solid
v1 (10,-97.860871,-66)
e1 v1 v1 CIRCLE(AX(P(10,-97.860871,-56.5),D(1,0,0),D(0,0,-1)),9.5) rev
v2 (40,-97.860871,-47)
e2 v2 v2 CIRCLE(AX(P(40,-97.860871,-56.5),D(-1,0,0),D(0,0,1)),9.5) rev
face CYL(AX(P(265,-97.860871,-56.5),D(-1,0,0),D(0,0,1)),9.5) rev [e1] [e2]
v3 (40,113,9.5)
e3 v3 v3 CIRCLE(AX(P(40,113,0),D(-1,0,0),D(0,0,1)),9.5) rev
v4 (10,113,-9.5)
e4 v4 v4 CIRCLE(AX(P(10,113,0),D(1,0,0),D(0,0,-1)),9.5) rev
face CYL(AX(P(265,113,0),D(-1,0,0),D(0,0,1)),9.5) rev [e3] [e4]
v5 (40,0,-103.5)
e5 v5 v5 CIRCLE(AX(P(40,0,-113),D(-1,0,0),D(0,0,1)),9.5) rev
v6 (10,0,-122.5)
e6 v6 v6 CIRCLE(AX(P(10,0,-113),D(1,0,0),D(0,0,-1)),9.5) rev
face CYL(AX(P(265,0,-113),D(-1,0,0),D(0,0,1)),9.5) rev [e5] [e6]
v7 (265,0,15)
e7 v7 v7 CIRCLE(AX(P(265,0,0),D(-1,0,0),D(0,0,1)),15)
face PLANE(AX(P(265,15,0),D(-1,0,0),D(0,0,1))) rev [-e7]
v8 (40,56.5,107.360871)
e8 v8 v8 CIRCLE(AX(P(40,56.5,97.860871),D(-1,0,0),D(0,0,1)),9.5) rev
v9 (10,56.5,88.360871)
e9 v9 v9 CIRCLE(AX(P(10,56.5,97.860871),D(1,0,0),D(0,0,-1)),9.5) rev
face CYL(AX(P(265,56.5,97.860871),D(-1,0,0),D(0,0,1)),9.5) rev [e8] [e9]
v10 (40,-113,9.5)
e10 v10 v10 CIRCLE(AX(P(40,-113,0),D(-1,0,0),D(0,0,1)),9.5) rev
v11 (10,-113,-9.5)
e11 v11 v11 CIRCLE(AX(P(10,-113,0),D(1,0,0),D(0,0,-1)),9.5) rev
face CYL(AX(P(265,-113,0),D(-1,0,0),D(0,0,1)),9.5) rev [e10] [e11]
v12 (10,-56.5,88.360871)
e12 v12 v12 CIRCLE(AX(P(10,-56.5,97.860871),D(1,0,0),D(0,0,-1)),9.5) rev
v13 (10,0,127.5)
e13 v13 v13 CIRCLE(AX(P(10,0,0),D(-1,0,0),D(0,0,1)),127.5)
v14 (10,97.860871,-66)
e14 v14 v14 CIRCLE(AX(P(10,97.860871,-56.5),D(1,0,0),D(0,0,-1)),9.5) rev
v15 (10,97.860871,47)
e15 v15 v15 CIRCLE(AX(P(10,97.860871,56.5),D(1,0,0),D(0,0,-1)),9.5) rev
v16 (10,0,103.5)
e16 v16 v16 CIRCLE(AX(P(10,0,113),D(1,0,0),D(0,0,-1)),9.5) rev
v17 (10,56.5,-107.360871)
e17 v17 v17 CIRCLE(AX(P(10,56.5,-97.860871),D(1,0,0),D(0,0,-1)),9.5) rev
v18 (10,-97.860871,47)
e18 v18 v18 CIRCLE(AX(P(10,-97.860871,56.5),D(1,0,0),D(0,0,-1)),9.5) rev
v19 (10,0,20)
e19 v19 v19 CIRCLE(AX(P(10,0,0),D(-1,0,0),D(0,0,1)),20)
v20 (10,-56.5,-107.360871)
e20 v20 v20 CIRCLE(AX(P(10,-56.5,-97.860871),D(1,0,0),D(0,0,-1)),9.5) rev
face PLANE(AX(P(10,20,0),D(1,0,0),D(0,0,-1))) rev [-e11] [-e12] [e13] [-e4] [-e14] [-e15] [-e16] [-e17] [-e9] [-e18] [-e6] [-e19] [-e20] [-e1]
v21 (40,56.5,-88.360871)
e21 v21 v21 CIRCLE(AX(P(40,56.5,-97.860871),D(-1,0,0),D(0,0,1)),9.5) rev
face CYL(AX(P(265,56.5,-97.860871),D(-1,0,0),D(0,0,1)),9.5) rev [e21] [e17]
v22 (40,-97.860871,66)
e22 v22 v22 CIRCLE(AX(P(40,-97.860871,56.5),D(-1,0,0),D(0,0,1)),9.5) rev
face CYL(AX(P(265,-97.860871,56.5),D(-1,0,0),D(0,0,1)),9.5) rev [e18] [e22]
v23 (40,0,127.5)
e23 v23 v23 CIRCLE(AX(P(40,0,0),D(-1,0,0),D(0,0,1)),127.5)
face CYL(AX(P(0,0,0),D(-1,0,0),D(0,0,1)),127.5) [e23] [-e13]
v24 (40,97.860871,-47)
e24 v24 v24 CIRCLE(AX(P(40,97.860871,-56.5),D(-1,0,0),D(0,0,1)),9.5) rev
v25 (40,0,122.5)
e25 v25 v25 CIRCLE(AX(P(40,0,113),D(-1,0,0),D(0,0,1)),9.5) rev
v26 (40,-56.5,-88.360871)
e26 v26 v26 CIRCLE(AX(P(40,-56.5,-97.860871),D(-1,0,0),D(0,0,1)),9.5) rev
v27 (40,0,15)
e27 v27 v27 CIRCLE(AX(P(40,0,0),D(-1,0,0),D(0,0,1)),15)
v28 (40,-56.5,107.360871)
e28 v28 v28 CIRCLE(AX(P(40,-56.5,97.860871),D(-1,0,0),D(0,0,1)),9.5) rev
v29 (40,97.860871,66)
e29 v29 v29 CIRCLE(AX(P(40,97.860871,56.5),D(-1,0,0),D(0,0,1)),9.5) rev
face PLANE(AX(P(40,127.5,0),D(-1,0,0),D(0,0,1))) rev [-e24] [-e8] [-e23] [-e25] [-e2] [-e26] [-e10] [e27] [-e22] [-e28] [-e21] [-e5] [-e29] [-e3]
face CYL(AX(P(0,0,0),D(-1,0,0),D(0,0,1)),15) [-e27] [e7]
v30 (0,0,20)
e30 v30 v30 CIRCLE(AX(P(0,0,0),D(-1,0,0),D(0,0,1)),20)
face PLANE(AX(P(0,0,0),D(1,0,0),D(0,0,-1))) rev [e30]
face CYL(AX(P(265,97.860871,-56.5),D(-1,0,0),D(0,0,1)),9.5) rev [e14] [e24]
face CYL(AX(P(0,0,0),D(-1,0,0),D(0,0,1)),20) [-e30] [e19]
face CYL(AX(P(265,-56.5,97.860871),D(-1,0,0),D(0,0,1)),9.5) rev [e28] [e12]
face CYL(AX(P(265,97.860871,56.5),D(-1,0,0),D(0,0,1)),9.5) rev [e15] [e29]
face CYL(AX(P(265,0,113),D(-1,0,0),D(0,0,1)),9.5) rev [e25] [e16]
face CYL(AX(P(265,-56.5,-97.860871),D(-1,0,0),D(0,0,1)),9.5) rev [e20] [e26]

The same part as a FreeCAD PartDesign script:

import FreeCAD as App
import Part
import Sketcher

doc = App.newDocument("Part")
body = doc.addObject("PartDesign::Body", "Body")

# Sketch on XY plane
sketch1 = doc.addObject("Sketcher::SketchObject", "Sketch")
body.addObject(sketch1)
sketch1.AttachmentSupport = (doc.XY_Plane, [""])
sketch1.MapMode = "FlatFace"
sketch1.addGeometry([
    Part.LineSegment(App.Vector(0, 0, 0), App.Vector(265, 0, 0)),  # 0
    Part.LineSegment(App.Vector(265, 0, 0), App.Vector(265, 15, 0)),  # 1
    Part.LineSegment(App.Vector(265, 15, 0), App.Vector(40, 15, 0)),  # 2
    Part.LineSegment(App.Vector(40, 15, 0), App.Vector(40, 128, 0)),  # 3
    Part.LineSegment(App.Vector(40, 128, 0), App.Vector(10, 128, 0)),  # 4
    Part.LineSegment(App.Vector(10, 128, 0), App.Vector(10, 20, 0)),  # 5
    Part.LineSegment(App.Vector(10, 20, 0), App.Vector(0, 20, 0)),  # 6
    Part.LineSegment(App.Vector(0, 20, 0), App.Vector(0, 0, 0)),  # 7
], False)
sketch1.addConstraint([
    Sketcher.Constraint("Coincident", 0, 2, 1, 1),
    Sketcher.Constraint("Coincident", 1, 2, 2, 1),
    Sketcher.Constraint("Coincident", 2, 2, 3, 1),
    Sketcher.Constraint("Coincident", 3, 2, 4, 1),
    Sketcher.Constraint("Coincident", 4, 2, 5, 1),
    Sketcher.Constraint("Coincident", 5, 2, 6, 1),
    Sketcher.Constraint("Coincident", 6, 2, 7, 1),
    Sketcher.Constraint("Coincident", 7, 2, 0, 1),
    Sketcher.Constraint("Horizontal", 0),
    Sketcher.Constraint("Vertical", 1),
    Sketcher.Constraint("Horizontal", 2),
    Sketcher.Constraint("Vertical", 3),
    Sketcher.Constraint("Horizontal", 4),
    Sketcher.Constraint("Vertical", 5),
    Sketcher.Constraint("Horizontal", 6),
    Sketcher.Constraint("Vertical", 7),
    Sketcher.Constraint("Coincident", 7, 2, -1, 1),
    Sketcher.Constraint("DistanceX", 0, 1, 0, 2, 265.0),
    Sketcher.Constraint("DistanceX", 2, 2, 2, 1, 225.0),
    Sketcher.Constraint("DistanceX", 4, 2, 4, 1, 30.0),
    Sketcher.Constraint("DistanceY", 1, 1, 1, 2, 15.0),
    Sketcher.Constraint("DistanceY", 7, 2, 7, 1, 20.0),
    Sketcher.Constraint("DistanceY", 3, 1, 3, 2, 112.5),
])
revolution = doc.addObject("PartDesign::Revolution", "Revolution")
body.addObject(revolution)
revolution.Profile = sketch1
revolution.ReferenceAxis = (sketch1, ["H_Axis"])
revolution.Angle = 360

# Sketch on YZ plane
sketch2 = doc.addObject("Sketcher::SketchObject", "Sketch001")
body.addObject(sketch2)
sketch2.AttachmentSupport = (doc.YZ_Plane, [""])
sketch2.MapMode = "FlatFace"
sketch2.addGeometry(Part.Circle(App.Vector(113, 0, 0), App.Vector(0, 0, 1), 10), False)
sketch2.addConstraint([
    Sketcher.Constraint("PointOnObject", 0, 3, -1),
    Sketcher.Constraint("Diameter", 0, 19.0),
    Sketcher.Constraint("DistanceX", -1, 1, 0, 3, 113.0),
])
pocket1 = doc.addObject("PartDesign::Pocket", "Pocket")
body.addObject(pocket1)
pocket1.Profile = sketch2
pocket1.Type = "ThroughAll"
pocket1.Reversed = True

# Sketch on YZ plane
sketch3 = doc.addObject("Sketcher::SketchObject", "Sketch002")
body.addObject(sketch3)
sketch3.AttachmentSupport = (doc.YZ_Plane, [""])
sketch3.MapMode = "FlatFace"
sketch3.addGeometry(Part.Circle(App.Vector(98, 56, 0), App.Vector(0, 0, 1), 10), False)
sketch3.addConstraint([
    Sketcher.Constraint("Diameter", 0, 19.0),
    Sketcher.Constraint("DistanceY", -1, 1, 0, 3, 56.5),
    Sketcher.Constraint("DistanceX", -1, 1, 0, 3, 97.860871),
])
pocket2 = doc.addObject("PartDesign::Pocket", "Pocket001")
body.addObject(pocket2)
pocket2.Profile = sketch3
pocket2.Type = "ThroughAll"
pocket2.Reversed = True

# Sketch on YZ plane
sketch4 = doc.addObject("Sketcher::SketchObject", "Sketch003")
body.addObject(sketch4)
sketch4.AttachmentSupport = (doc.YZ_Plane, [""])
sketch4.MapMode = "FlatFace"
sketch4.addGeometry(Part.Circle(App.Vector(56, 98, 0), App.Vector(0, 0, 1), 10), False)
sketch4.addConstraint([
    Sketcher.Constraint("Diameter", 0, 19.0),
    Sketcher.Constraint("DistanceX", -1, 1, 0, 3, 56.5),
    Sketcher.Constraint("DistanceY", -1, 1, 0, 3, 97.860871),
])
pocket3 = doc.addObject("PartDesign::Pocket", "Pocket002")
body.addObject(pocket3)
pocket3.Profile = sketch4
pocket3.Type = "ThroughAll"
pocket3.Reversed = True

# Sketch on YZ plane
sketch5 = doc.addObject("Sketcher::SketchObject", "Sketch004")
body.addObject(sketch5)
sketch5.AttachmentSupport = (doc.YZ_Plane, [""])
sketch5.MapMode = "FlatFace"
sketch5.addGeometry(Part.Circle(App.Vector(0, 113, 0), App.Vector(0, 0, 1), 10), False)
sketch5.addConstraint([
    Sketcher.Constraint("PointOnObject", 0, 3, -2),
    Sketcher.Constraint("Diameter", 0, 19.0),
    Sketcher.Constraint("DistanceY", -1, 1, 0, 3, 113.0),
])
pocket4 = doc.addObject("PartDesign::Pocket", "Pocket003")
body.addObject(pocket4)
pocket4.Profile = sketch5
pocket4.Type = "ThroughAll"
pocket4.Reversed = True

# Sketch on YZ plane
sketch6 = doc.addObject("Sketcher::SketchObject", "Sketch005")
body.addObject(sketch6)
sketch6.AttachmentSupport = (doc.YZ_Plane, [""])
sketch6.MapMode = "FlatFace"
sketch6.addGeometry(Part.Circle(App.Vector(-56, 98, 0), App.Vector(0, 0, 1), 10), False)
sketch6.addConstraint([
    Sketcher.Constraint("Diameter", 0, 19.0),
    Sketcher.Constraint("DistanceX", 0, 3, -1, 1, 56.5),
    Sketcher.Constraint("DistanceY", -1, 1, 0, 3, 97.860871),
])
pocket5 = doc.addObject("PartDesign::Pocket", "Pocket004")
body.addObject(pocket5)
pocket5.Profile = sketch6
pocket5.Type = "ThroughAll"
pocket5.Reversed = True

# Sketch on YZ plane
sketch7 = doc.addObject("Sketcher::SketchObject", "Sketch006")
body.addObject(sketch7)
sketch7.AttachmentSupport = (doc.YZ_Plane, [""])
sketch7.MapMode = "FlatFace"
sketch7.addGeometry(Part.Circle(App.Vector(-98, 56, 0), App.Vector(0, 0, 1), 10), False)
sketch7.addConstraint([
    Sketcher.Constraint("Diameter", 0, 19.0),
    Sketcher.Constraint("DistanceY", -1, 1, 0, 3, 56.5),
    Sketcher.Constraint("DistanceX", 0, 3, -1, 1, 97.860871),
])
pocket6 = doc.addObject("PartDesign::Pocket", "Pocket005")
body.addObject(pocket6)
pocket6.Profile = sketch7
pocket6.Type = "ThroughAll"
pocket6.Reversed = True

# Sketch on YZ plane
sketch8 = doc.addObject("Sketcher::SketchObject", "Sketch007")
body.addObject(sketch8)
sketch8.AttachmentSupport = (doc.YZ_Plane, [""])
sketch8.MapMode = "FlatFace"
sketch8.addGeometry(Part.Circle(App.Vector(-113, 0, 0), App.Vector(0, 0, 1), 10), False)
sketch8.addConstraint([
    Sketcher.Constraint("PointOnObject", 0, 3, -1),
    Sketcher.Constraint("Diameter", 0, 19.0),
    Sketcher.Constraint("DistanceX", 0, 3, -1, 1, 113.0),
])
pocket7 = doc.addObject("PartDesign::Pocket", "Pocket006")
body.addObject(pocket7)
pocket7.Profile = sketch8
pocket7.Type = "ThroughAll"
pocket7.Reversed = True

# Sketch on YZ plane
sketch9 = doc.addObject("Sketcher::SketchObject", "Sketch008")
body.addObject(sketch9)
sketch9.AttachmentSupport = (doc.YZ_Plane, [""])
sketch9.MapMode = "FlatFace"
sketch9.addGeometry(Part.Circle(App.Vector(-98, -56, 0), App.Vector(0, 0, 1), 10), False)
sketch9.addConstraint([
    Sketcher.Constraint("Diameter", 0, 19.0),
    Sketcher.Constraint("DistanceY", 0, 3, -1, 1, 56.5),
    Sketcher.Constraint("DistanceX", 0, 3, -1, 1, 97.860871),
])
pocket8 = doc.addObject("PartDesign::Pocket", "Pocket007")
body.addObject(pocket8)
pocket8.Profile = sketch9
pocket8.Type = "ThroughAll"
pocket8.Reversed = True

# Sketch on YZ plane
sketch10 = doc.addObject("Sketcher::SketchObject", "Sketch009")
body.addObject(sketch10)
sketch10.AttachmentSupport = (doc.YZ_Plane, [""])
sketch10.MapMode = "FlatFace"
sketch10.addGeometry(Part.Circle(App.Vector(-56, -98, 0), App.Vector(0, 0, 1), 10), False)
sketch10.addConstraint([
    Sketcher.Constraint("Diameter", 0, 19.0),
    Sketcher.Constraint("DistanceX", 0, 3, -1, 1, 56.5),
    Sketcher.Constraint("DistanceY", 0, 3, -1, 1, 97.860871),
])
pocket9 = doc.addObject("PartDesign::Pocket", "Pocket008")
body.addObject(pocket9)
pocket9.Profile = sketch10
pocket9.Type = "ThroughAll"
pocket9.Reversed = True

# Sketch on YZ plane
sketch11 = doc.addObject("Sketcher::SketchObject", "Sketch010")
body.addObject(sketch11)
sketch11.AttachmentSupport = (doc.YZ_Plane, [""])
sketch11.MapMode = "FlatFace"
sketch11.addGeometry(Part.Circle(App.Vector(0, -113, 0), App.Vector(0, 0, 1), 10), False)
sketch11.addConstraint([
    Sketcher.Constraint("PointOnObject", 0, 3, -2),
    Sketcher.Constraint("Diameter", 0, 19.0),
    Sketcher.Constraint("DistanceY", 0, 3, -1, 1, 113.0),
])
pocket10 = doc.addObject("PartDesign::Pocket", "Pocket009")
body.addObject(pocket10)
pocket10.Profile = sketch11
pocket10.Type = "ThroughAll"
pocket10.Reversed = True

# Sketch on YZ plane
sketch12 = doc.addObject("Sketcher::SketchObject", "Sketch011")
body.addObject(sketch12)
sketch12.AttachmentSupport = (doc.YZ_Plane, [""])
sketch12.MapMode = "FlatFace"
sketch12.addGeometry(Part.Circle(App.Vector(56, -98, 0), App.Vector(0, 0, 1), 10), False)
sketch12.addConstraint([
    Sketcher.Constraint("Diameter", 0, 19.0),
    Sketcher.Constraint("DistanceX", -1, 1, 0, 3, 56.5),
    Sketcher.Constraint("DistanceY", 0, 3, -1, 1, 97.860871),
])
pocket11 = doc.addObject("PartDesign::Pocket", "Pocket010")
body.addObject(pocket11)
pocket11.Profile = sketch12
pocket11.Type = "ThroughAll"
pocket11.Reversed = True

# Sketch on YZ plane
sketch13 = doc.addObject("Sketcher::SketchObject", "Sketch012")
body.addObject(sketch13)
sketch13.AttachmentSupport = (doc.YZ_Plane, [""])
sketch13.MapMode = "FlatFace"
sketch13.addGeometry(Part.Circle(App.Vector(98, -56, 0), App.Vector(0, 0, 1), 10), False)
sketch13.addConstraint([
    Sketcher.Constraint("Diameter", 0, 19.0),
    Sketcher.Constraint("DistanceY", 0, 3, -1, 1, 56.5),
    Sketcher.Constraint("DistanceX", -1, 1, 0, 3, 97.860871),
])
pocket12 = doc.addObject("PartDesign::Pocket", "Pocket011")
body.addObject(pocket12)
pocket12.Profile = sketch13
pocket12.Type = "ThroughAll"
pocket12.Reversed = True

doc.recompute()
